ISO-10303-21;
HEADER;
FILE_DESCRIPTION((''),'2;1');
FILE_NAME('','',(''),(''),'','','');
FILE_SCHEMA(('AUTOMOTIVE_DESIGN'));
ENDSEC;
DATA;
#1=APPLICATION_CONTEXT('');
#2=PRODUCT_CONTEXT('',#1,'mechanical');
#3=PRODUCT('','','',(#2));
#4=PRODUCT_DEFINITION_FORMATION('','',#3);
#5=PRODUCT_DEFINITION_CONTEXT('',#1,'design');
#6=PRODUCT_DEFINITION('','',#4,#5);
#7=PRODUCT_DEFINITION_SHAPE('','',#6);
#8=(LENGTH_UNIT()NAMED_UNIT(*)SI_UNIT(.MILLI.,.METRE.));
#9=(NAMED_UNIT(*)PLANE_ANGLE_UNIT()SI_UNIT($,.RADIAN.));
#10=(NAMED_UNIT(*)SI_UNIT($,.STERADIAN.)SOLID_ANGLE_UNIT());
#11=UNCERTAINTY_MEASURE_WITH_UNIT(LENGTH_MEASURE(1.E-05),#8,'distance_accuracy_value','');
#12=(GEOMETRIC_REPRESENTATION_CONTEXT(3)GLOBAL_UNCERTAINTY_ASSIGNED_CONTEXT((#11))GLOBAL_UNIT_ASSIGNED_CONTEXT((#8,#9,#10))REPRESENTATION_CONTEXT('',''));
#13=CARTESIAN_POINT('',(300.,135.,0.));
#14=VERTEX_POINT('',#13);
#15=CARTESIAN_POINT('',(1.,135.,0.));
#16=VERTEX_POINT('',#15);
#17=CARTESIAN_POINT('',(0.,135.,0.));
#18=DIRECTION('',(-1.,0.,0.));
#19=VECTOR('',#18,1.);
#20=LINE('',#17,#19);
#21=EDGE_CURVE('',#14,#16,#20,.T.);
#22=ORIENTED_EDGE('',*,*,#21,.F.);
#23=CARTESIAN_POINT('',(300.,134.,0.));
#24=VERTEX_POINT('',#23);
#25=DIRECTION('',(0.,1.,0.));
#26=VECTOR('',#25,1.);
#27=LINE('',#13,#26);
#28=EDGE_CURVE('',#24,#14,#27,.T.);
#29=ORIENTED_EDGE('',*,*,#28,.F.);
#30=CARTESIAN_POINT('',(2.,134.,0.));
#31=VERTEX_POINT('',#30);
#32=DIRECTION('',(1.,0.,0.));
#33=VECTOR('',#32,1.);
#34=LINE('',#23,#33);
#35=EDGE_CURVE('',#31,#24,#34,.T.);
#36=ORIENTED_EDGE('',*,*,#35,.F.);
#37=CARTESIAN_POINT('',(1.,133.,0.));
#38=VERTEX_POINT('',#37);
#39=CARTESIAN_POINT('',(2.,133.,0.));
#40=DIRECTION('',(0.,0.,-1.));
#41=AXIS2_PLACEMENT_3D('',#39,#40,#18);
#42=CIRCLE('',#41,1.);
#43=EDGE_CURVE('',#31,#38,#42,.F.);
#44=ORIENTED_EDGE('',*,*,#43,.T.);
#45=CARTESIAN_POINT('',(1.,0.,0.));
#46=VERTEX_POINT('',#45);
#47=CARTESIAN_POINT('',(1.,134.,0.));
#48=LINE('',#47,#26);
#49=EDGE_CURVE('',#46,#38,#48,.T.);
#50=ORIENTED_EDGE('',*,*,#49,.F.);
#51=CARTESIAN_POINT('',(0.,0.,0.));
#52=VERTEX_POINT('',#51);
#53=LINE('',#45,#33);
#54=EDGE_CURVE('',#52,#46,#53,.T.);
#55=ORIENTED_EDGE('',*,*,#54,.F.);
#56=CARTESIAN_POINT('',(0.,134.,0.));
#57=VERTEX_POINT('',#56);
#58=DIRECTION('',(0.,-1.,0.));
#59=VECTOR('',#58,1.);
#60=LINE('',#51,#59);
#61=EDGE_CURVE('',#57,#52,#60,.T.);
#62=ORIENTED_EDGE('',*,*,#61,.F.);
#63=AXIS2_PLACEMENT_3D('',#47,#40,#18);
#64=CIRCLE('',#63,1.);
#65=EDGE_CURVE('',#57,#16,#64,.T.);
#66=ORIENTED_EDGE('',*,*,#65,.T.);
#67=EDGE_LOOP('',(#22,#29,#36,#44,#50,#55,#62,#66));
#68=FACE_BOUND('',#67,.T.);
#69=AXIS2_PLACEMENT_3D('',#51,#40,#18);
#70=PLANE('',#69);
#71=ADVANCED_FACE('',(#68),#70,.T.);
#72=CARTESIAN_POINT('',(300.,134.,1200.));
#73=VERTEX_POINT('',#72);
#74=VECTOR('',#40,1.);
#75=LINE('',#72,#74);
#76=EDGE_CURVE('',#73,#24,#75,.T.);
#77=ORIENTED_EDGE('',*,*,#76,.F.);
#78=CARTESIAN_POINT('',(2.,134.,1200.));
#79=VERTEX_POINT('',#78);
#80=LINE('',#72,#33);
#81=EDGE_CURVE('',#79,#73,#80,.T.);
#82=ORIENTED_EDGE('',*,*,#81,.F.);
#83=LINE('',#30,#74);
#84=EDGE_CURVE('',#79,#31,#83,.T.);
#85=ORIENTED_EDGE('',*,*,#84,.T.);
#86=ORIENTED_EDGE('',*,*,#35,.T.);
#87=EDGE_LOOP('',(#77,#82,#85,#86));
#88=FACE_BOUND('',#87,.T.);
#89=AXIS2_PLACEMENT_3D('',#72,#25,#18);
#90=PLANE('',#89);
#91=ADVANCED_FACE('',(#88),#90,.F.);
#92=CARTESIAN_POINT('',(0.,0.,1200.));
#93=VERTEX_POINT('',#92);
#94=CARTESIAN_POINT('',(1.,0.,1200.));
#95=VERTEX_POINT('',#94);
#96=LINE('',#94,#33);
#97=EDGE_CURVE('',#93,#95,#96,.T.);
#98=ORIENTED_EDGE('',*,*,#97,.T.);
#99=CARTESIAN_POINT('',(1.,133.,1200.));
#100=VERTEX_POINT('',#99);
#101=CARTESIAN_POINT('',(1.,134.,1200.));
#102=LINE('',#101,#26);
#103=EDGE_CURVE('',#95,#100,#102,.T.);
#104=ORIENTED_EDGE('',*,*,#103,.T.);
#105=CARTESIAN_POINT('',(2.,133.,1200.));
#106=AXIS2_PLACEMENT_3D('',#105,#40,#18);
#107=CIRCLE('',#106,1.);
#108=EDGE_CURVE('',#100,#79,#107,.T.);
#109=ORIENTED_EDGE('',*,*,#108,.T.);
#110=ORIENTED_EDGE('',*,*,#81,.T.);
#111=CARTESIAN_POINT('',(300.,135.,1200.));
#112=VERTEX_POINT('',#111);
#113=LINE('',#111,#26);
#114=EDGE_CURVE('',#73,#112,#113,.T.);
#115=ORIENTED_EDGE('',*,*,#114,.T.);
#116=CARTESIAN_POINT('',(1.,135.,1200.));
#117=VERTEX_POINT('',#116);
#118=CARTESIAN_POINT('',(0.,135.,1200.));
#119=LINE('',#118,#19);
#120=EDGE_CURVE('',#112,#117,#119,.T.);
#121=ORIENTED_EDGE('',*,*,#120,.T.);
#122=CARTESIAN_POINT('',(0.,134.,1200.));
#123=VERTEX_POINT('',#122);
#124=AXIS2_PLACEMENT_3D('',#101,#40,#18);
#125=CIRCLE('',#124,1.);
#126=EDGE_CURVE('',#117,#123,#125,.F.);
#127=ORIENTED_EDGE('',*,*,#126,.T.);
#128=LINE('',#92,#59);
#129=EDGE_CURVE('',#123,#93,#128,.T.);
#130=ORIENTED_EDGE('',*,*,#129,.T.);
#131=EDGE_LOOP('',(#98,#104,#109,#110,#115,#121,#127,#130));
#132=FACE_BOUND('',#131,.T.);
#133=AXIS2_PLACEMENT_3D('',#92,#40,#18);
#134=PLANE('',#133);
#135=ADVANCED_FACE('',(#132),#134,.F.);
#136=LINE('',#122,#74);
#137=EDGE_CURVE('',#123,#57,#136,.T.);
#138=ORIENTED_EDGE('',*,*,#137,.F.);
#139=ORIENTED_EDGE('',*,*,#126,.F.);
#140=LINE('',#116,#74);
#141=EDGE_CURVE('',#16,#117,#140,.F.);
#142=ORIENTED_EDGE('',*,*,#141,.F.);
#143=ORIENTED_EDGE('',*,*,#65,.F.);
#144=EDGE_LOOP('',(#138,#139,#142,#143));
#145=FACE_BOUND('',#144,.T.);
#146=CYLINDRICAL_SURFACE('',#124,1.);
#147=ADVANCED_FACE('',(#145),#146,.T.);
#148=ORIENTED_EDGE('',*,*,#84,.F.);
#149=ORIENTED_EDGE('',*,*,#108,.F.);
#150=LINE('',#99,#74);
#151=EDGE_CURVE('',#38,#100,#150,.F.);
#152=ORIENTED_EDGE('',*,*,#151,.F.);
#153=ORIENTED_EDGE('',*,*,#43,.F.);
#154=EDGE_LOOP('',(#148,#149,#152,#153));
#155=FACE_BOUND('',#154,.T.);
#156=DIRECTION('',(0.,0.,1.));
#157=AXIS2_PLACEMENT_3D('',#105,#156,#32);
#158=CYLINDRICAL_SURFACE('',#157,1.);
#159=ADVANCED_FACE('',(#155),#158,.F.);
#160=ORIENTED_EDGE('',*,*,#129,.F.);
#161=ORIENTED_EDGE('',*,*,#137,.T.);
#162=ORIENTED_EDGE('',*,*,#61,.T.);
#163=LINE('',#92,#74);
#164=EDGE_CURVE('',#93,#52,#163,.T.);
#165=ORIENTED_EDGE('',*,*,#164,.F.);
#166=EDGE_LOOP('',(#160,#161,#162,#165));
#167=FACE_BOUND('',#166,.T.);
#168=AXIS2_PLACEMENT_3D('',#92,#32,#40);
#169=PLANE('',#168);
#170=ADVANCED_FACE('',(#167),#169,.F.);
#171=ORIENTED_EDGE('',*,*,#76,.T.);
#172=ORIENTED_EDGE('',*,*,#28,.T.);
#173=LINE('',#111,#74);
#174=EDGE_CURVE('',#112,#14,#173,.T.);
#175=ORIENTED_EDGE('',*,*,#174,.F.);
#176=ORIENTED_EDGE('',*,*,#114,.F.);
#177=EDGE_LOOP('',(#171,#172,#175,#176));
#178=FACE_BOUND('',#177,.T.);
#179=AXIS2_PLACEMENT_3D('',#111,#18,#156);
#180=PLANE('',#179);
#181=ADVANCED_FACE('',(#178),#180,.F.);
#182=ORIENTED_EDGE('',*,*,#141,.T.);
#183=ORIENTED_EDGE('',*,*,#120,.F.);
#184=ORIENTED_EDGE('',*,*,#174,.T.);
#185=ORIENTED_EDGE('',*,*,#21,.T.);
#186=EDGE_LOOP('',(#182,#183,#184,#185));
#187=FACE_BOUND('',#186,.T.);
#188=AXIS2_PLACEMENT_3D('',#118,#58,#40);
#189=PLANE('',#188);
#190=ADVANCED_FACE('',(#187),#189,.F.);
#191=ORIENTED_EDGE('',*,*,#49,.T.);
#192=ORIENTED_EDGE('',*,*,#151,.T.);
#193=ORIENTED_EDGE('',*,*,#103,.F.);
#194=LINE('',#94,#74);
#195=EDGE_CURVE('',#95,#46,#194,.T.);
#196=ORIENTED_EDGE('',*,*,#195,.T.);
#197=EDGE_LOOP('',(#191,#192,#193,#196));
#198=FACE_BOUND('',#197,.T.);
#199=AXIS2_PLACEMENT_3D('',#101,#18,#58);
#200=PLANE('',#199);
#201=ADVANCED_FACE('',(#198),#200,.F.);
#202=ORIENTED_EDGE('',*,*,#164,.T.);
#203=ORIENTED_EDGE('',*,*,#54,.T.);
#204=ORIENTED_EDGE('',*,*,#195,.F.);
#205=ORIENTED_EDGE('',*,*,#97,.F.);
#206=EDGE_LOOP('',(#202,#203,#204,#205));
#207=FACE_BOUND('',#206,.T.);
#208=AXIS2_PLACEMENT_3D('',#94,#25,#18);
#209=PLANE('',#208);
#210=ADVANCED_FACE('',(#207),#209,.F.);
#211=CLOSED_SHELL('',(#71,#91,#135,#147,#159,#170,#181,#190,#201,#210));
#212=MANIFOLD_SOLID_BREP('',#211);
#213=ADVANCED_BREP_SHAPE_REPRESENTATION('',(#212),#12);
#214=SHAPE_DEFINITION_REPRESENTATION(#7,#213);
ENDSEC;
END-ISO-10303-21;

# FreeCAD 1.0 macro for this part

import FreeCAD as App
import Part
import Sketcher
from FreeCAD import Vector


def edges_at(feature, points):
    """Names of the edges that pass closest to the given points."""
    edges = feature.Shape.Edges
    near = lambda p: min(range(len(edges)), key=lambda i: edges[i].distToShape(Part.Vertex(*p))[0])
    return sorted({f"Edge{near(p) + 1}" for p in points})

doc = App.newDocument("Part")
body = doc.addObject("PartDesign::Body", "Body")

# Sketch on XY plane
sketch1 = body.newObject("Sketcher::SketchObject", "Sketch")
sketch1.AttachmentSupport = (doc.getObject("XY_Plane"), [""])
sketch1.MapMode = "FlatFace"
sketch1.addGeometry(Part.LineSegment(Vector(0, 135, 0), Vector(0, 0, 0)), False)
sketch1.addGeometry(Part.LineSegment(Vector(0, 0, 0), Vector(1, 0, 0)), False)
sketch1.addGeometry(Part.LineSegment(Vector(1, 0, 0), Vector(1, 134, 0)), False)
sketch1.addGeometry(Part.LineSegment(Vector(1, 134, 0), Vector(300, 134, 0)), False)
sketch1.addGeometry(Part.LineSegment(Vector(300, 134, 0), Vector(300, 135, 0)), False)
sketch1.addGeometry(Part.LineSegment(Vector(300, 135, 0), Vector(0, 135, 0)), False)
sketch1.addConstraint(Sketcher.Constraint("Coincident", 0, 2, 1, 1))
sketch1.addConstraint(Sketcher.Constraint("Coincident", 1, 2, 2, 1))
sketch1.addConstraint(Sketcher.Constraint("Coincident", 2, 2, 3, 1))
sketch1.addConstraint(Sketcher.Constraint("Coincident", 3, 2, 4, 1))
sketch1.addConstraint(Sketcher.Constraint("Coincident", 4, 2, 5, 1))
sketch1.addConstraint(Sketcher.Constraint("Coincident", 5, 2, 0, 1))
sketch1.addConstraint(Sketcher.Constraint("Vertical", 0))
sketch1.addConstraint(Sketcher.Constraint("Horizontal", 1))
sketch1.addConstraint(Sketcher.Constraint("Vertical", 2))
sketch1.addConstraint(Sketcher.Constraint("Horizontal", 3))
sketch1.addConstraint(Sketcher.Constraint("Vertical", 4))
sketch1.addConstraint(Sketcher.Constraint("Horizontal", 5))
sketch1.addConstraint(Sketcher.Constraint("Coincident", 0, 2, -1, 1))
sketch1.addConstraint(Sketcher.Constraint("Equal", 1, 4))
sketch1.addConstraint(Sketcher.Constraint("DistanceX", 1, 1, 1, 2, 1.0))
sketch1.addConstraint(Sketcher.Constraint("DistanceX", 3, 1, 3, 2, 299.0))
sketch1.addConstraint(Sketcher.Constraint("DistanceY", 0, 2, 0, 1, 135.0))
pad1 = body.newObject("PartDesign::Pad", "Pad")
pad1.Profile = sketch1
pad1.Length = 1200
doc.recompute()

fillet = body.newObject("PartDesign::Fillet", "Fillet")
fillet.Base = (pad1, edges_at(pad1, [(0, 135, 600), (1, 134, 600)]))
fillet.Radius = 1

doc.recompute()
